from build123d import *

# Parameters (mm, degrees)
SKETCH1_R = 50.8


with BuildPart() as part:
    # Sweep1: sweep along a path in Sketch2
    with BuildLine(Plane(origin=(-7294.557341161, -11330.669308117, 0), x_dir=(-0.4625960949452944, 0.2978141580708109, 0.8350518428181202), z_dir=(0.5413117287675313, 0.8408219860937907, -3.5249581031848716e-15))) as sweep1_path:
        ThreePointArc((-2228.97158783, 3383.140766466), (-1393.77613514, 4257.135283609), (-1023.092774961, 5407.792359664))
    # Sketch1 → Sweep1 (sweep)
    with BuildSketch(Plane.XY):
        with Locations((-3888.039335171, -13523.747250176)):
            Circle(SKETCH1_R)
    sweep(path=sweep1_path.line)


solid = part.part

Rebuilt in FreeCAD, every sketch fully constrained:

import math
import FreeCAD as App
import Part
import Sketcher
Q = App.Units.Quantity

doc = App.newDocument("Part")
params = doc.addObject("Spreadsheet::Sheet", "Params")
for row, (alias, value) in enumerate([
    ("sketch1_diameter", "4 in"),
], start=1):
    params.set(f"A{row}", alias)
    params.set(f"B{row}", "=" + value)
    params.setAlias(f"B{row}", alias)

body = doc.addObject("PartDesign::Body", "Body")

# Sketch on XY plane
sketch1 = body.newObject("Sketcher::SketchObject", "Sketch")
sketch1.AttachmentSupport = (doc.getObject("XY_Plane"), [""])
sketch1.MapMode = "FlatFace"
sketch1.addGeometry(Part.Circle(App.Vector(-3888.039335, -13523.74725, 0), App.Vector(0, 0, 1), 50.8), False)
sketch1.addConstraint([
    Sketcher.Constraint("Diameter", 0, Q("4 in")),
    Sketcher.Constraint("DistanceY", 0, 3, -1, 1, 13523.74725),
    Sketcher.Constraint("DistanceX", 0, 3, -1, 1, 3888.039335),
])
sketch1.setExpression("Constraints[0]", "Params.sketch1_diameter")

# Sketch on an angled plane
sketch2 = body.newObject("Sketcher::SketchObject", "Sketch001")
sketch2.Placement = App.Placement(App.Vector(-7294.557341, -11330.669308, 0), App.Rotation(App.Vector(0.840821986, -0.541311729, 0), App.Vector(0, 0, 1), App.Vector(-0.541311729, -0.840821986, 0), "ZXY"))
sketch2.addGeometry(Part.ArcOfCircle(Part.Circle(App.Vector(6754.437779, 0, 0), App.Vector(0, 0, 1), 2703.023731), math.radians(128.313429), math.radians(180)), False)
sketch2.addConstraint([
    Sketcher.Constraint("PointOnObject", 0, 3, -1),
    Sketcher.Constraint("PointOnObject", 0, 2, -1),
    Sketcher.Constraint("Radius", 0, 2703.023731),
    Sketcher.Constraint("DistanceX", -1, 1, 0, 3, 6754.437779),
    Sketcher.Constraint("DistanceX", -1, 1, 0, 1, 5078.663222),
])
doc.recompute()

additivepipe = body.newObject("PartDesign::AdditivePipe", "AdditivePipe")
additivepipe.Profile = sketch1
additivepipe.Spine = (sketch2, ["Edge1"])

doc.recompute()
